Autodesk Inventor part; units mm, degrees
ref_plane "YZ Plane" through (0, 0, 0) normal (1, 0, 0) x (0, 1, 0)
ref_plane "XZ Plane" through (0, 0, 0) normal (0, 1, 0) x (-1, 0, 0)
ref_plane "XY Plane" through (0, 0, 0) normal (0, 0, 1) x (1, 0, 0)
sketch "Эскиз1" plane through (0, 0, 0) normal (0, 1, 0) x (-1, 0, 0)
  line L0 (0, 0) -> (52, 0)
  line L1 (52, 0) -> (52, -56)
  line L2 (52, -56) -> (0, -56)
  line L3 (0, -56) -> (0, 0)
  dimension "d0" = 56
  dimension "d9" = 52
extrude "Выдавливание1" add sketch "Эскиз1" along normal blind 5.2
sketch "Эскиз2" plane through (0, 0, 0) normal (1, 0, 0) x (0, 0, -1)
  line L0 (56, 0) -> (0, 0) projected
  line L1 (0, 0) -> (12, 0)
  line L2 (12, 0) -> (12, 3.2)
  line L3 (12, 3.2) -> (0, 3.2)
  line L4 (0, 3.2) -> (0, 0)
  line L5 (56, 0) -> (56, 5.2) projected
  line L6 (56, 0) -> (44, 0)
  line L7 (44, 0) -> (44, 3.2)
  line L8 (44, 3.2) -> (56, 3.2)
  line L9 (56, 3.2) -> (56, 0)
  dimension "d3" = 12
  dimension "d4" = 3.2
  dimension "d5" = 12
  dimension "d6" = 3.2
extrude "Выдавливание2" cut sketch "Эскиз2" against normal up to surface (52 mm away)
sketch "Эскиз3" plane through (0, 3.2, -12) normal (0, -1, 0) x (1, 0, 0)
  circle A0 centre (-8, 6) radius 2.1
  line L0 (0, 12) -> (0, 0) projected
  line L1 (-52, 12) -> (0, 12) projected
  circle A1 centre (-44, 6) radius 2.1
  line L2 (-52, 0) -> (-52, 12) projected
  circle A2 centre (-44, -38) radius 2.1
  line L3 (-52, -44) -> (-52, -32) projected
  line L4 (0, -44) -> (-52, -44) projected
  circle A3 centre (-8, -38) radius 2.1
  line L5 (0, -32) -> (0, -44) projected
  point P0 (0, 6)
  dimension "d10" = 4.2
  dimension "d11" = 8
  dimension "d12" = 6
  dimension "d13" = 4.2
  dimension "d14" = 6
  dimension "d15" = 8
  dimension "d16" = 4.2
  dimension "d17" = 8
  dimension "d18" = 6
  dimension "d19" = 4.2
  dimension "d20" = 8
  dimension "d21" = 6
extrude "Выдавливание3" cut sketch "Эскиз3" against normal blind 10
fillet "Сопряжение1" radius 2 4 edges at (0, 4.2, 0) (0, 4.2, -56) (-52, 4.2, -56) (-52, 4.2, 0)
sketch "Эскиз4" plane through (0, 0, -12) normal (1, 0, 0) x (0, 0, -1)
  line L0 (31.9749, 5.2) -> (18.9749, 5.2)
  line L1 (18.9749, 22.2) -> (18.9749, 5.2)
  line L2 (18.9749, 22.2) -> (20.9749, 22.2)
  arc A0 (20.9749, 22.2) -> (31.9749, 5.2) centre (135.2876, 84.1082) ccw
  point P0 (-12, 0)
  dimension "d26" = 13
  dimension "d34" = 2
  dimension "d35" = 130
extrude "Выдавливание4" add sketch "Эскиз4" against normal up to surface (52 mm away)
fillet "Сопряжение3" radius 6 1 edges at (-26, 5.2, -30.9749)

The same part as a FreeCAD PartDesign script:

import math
import FreeCAD as App
import Part
import Sketcher
from FreeCAD import Vector


def edges_at(feature, points):
    """Names of the edges that pass closest to the given points."""
    edges = feature.Shape.Edges
    near = lambda p: min(range(len(edges)), key=lambda i: edges[i].distToShape(Part.Vertex(*p))[0])
    return sorted({f"Edge{near(p) + 1}" for p in points})


def add_polygon(sketch, points):
    """Adds a closed chain of lines whose ends are joined by coincident constraints."""
    first, n = sketch.GeometryCount, len(points)
    for a, b in zip(points, points[1:] + points[:1]):
        sketch.addGeometry(Part.LineSegment(App.Vector(*a, 0), App.Vector(*b, 0)), False)
    for i in range(n):
        sketch.addConstraint(Sketcher.Constraint("Coincident", first + i, 2, first + (i + 1) % n, 1))

doc = App.newDocument("Part")
body = doc.addObject("PartDesign::Body", "Body")

# Sketch on XZ plane
sketch1 = body.newObject("Sketcher::SketchObject", "Sketch")
sketch1.AttachmentSupport = (doc.getObject("XZ_Plane"), [""])
sketch1.MapMode = "FlatFace"
add_polygon(sketch1, [(-52, 0), (0, 0), (0, -56), (-52, -56)])  # lines 0-3
sketch1.addConstraint([
    Sketcher.Constraint("Horizontal", 0),
    Sketcher.Constraint("Vertical", 1),
    Sketcher.Constraint("Horizontal", 2),
    Sketcher.Constraint("Vertical", 3),
    Sketcher.Constraint("Coincident", 0, 2, -1, 1),
    Sketcher.Constraint("DistanceX", 0, 1, 0, 2, 52.0),
    Sketcher.Constraint("DistanceY", 1, 2, 1, 1, 56.0),
])
pad1 = body.newObject("PartDesign::Pad", "Pad")
pad1.Profile = sketch1
pad1.Length = 5.2
pad1.Reversed = True

# Sketch on YZ plane
sketch2 = body.newObject("Sketcher::SketchObject", "Sketch001")
sketch2.AttachmentSupport = (doc.getObject("YZ_Plane"), [""])
sketch2.MapMode = "FlatFace"
add_polygon(sketch2, [(0, 0), (0, -12), (3.2, -12), (3.2, 0)])  # lines 0-3
add_polygon(sketch2, [(0, -44), (0, -56), (3.2, -56), (3.2, -44)])  # lines 4-7
sketch2.addConstraint([
    Sketcher.Constraint("Vertical", 0),
    Sketcher.Constraint("Horizontal", 1),
    Sketcher.Constraint("Vertical", 2),
    Sketcher.Constraint("Horizontal", 3),
    Sketcher.Constraint("Vertical", 4),
    Sketcher.Constraint("Horizontal", 5),
    Sketcher.Constraint("Vertical", 6),
    Sketcher.Constraint("Horizontal", 7),
    Sketcher.Constraint("Coincident", 3, 2, -1, 1),
    Sketcher.Constraint("PointOnObject", 4, 2, -2),
    Sketcher.Constraint("Vertical", 2, 2, 5, 2),
    Sketcher.Constraint("Equal", 2, 4),
    Sketcher.Constraint("DistanceY", 0, 2, 0, 1, 12.0),
    Sketcher.Constraint("DistanceX", 1, 1, 1, 2, 3.2),
    Sketcher.Constraint("DistanceY", 4, 2, -1, 1, 56.0),
])
pocket1 = body.newObject("PartDesign::Pocket", "Pocket")
pocket1.Profile = sketch2
pocket1.Length = 52

# Sketch on XZ plane
sketch3 = body.newObject("Sketcher::SketchObject", "Sketch002")
sketch3.AttachmentSupport = (doc.getObject("XZ_Plane"), [""])
sketch3.MapMode = "FlatFace"
sketch3.AttachmentOffset = App.Placement(Vector(0, 0, -3.2), App.Rotation())
sketch3.addGeometry([
    Part.Circle(Vector(-8, -6, 0), Vector(0, 0, 1), 2.1),
    Part.Circle(Vector(-44, -6, 0), Vector(0, 0, 1), 2.1),
    Part.Circle(Vector(-44, -50, 0), Vector(0, 0, 1), 2.1),
    Part.Circle(Vector(-8, -50, 0), Vector(0, 0, 1), 2.1),
], False)
sketch3.addConstraint([
    Sketcher.Constraint("Equal", 0, 1),
    Sketcher.Constraint("Equal", 1, 2),
    Sketcher.Constraint("Equal", 2, 3),
    Sketcher.Constraint("Horizontal", 0, 3, 1, 3),
    Sketcher.Constraint("Horizontal", 2, 3, 3, 3),
    Sketcher.Constraint("Vertical", 1, 3, 2, 3),
    Sketcher.Constraint("Vertical", 0, 3, 3, 3),
    Sketcher.Constraint("Diameter", 0, 4.2),
    Sketcher.Constraint("DistanceX", 0, 3, -1, 1, 8.0),
    Sketcher.Constraint("DistanceY", 0, 3, -1, 1, 6.0),
    Sketcher.Constraint("DistanceX", 1, 3, -1, 1, 44.0),
    Sketcher.Constraint("DistanceY", 2, 3, -1, 1, 50.0),
])
pocket2 = body.newObject("PartDesign::Pocket", "Pocket001")
pocket2.Profile = sketch3
pocket2.Length = 10
doc.recompute()

fillet = body.newObject("PartDesign::Fillet", "Fillet")
fillet.Base = (pocket2, edges_at(pocket2, [
    (0, 4.2, 0),
    (0, 4.2, -56),
    (-52, 4.2, -56),
    (-52, 4.2, 0),
]))
fillet.Radius = 2

# Sketch on YZ plane
sketch4 = body.newObject("Sketcher::SketchObject", "Sketch003")
sketch4.AttachmentSupport = (doc.getObject("YZ_Plane"), [""])
sketch4.MapMode = "FlatFace"
sketch4.addGeometry([
    Part.LineSegment(Vector(5.2, -31, 0), Vector(5.2, -44, 0)),
    Part.ArcOfCircle(Part.Circle(Vector(84.1, -147.3, 0), Vector(0, 0, 1), 130), math.radians(118.44), math.radians(127.37)),
    Part.LineSegment(Vector(22.2, -33, 0), Vector(22.2, -31, 0)),
    Part.LineSegment(Vector(22.2, -31, 0), Vector(5.2, -31, 0)),
], False)
sketch4.addConstraint([
    Sketcher.Constraint("Coincident", 0, 2, 1, 2),
    Sketcher.Constraint("Coincident", 1, 1, 2, 1),
    Sketcher.Constraint("Coincident", 2, 2, 3, 1),
    Sketcher.Constraint("Coincident", 3, 2, 0, 1),
    Sketcher.Constraint("Vertical", 0),
    Sketcher.Constraint("Vertical", 2),
    Sketcher.Constraint("Horizontal", 3),
    Sketcher.Constraint("Radius", 1, 130.0),
    Sketcher.Constraint("DistanceY", 0, 2, 0, 1, 13.0),
    Sketcher.Constraint("DistanceY", 2, 1, 2, 2, 2.0),
    Sketcher.Constraint("DistanceX", 3, 2, 3, 1, 17.0),
    Sketcher.Constraint("DistanceX", -1, 1, 0, 2, 5.2),
    Sketcher.Constraint("DistanceY", 0, 2, -1, 1, 43.975),
])
pad2 = body.newObject("PartDesign::Pad", "Pad001")
pad2.Profile = sketch4
pad2.Length = 52
pad2.Reversed = True
doc.recompute()

fillet2 = body.newObject("PartDesign::Fillet", "Fillet001")
fillet2.Base = (pad2, edges_at(pad2, [(-26, 5.2, -30.975)]))
fillet2.Radius = 6

doc.recompute()
